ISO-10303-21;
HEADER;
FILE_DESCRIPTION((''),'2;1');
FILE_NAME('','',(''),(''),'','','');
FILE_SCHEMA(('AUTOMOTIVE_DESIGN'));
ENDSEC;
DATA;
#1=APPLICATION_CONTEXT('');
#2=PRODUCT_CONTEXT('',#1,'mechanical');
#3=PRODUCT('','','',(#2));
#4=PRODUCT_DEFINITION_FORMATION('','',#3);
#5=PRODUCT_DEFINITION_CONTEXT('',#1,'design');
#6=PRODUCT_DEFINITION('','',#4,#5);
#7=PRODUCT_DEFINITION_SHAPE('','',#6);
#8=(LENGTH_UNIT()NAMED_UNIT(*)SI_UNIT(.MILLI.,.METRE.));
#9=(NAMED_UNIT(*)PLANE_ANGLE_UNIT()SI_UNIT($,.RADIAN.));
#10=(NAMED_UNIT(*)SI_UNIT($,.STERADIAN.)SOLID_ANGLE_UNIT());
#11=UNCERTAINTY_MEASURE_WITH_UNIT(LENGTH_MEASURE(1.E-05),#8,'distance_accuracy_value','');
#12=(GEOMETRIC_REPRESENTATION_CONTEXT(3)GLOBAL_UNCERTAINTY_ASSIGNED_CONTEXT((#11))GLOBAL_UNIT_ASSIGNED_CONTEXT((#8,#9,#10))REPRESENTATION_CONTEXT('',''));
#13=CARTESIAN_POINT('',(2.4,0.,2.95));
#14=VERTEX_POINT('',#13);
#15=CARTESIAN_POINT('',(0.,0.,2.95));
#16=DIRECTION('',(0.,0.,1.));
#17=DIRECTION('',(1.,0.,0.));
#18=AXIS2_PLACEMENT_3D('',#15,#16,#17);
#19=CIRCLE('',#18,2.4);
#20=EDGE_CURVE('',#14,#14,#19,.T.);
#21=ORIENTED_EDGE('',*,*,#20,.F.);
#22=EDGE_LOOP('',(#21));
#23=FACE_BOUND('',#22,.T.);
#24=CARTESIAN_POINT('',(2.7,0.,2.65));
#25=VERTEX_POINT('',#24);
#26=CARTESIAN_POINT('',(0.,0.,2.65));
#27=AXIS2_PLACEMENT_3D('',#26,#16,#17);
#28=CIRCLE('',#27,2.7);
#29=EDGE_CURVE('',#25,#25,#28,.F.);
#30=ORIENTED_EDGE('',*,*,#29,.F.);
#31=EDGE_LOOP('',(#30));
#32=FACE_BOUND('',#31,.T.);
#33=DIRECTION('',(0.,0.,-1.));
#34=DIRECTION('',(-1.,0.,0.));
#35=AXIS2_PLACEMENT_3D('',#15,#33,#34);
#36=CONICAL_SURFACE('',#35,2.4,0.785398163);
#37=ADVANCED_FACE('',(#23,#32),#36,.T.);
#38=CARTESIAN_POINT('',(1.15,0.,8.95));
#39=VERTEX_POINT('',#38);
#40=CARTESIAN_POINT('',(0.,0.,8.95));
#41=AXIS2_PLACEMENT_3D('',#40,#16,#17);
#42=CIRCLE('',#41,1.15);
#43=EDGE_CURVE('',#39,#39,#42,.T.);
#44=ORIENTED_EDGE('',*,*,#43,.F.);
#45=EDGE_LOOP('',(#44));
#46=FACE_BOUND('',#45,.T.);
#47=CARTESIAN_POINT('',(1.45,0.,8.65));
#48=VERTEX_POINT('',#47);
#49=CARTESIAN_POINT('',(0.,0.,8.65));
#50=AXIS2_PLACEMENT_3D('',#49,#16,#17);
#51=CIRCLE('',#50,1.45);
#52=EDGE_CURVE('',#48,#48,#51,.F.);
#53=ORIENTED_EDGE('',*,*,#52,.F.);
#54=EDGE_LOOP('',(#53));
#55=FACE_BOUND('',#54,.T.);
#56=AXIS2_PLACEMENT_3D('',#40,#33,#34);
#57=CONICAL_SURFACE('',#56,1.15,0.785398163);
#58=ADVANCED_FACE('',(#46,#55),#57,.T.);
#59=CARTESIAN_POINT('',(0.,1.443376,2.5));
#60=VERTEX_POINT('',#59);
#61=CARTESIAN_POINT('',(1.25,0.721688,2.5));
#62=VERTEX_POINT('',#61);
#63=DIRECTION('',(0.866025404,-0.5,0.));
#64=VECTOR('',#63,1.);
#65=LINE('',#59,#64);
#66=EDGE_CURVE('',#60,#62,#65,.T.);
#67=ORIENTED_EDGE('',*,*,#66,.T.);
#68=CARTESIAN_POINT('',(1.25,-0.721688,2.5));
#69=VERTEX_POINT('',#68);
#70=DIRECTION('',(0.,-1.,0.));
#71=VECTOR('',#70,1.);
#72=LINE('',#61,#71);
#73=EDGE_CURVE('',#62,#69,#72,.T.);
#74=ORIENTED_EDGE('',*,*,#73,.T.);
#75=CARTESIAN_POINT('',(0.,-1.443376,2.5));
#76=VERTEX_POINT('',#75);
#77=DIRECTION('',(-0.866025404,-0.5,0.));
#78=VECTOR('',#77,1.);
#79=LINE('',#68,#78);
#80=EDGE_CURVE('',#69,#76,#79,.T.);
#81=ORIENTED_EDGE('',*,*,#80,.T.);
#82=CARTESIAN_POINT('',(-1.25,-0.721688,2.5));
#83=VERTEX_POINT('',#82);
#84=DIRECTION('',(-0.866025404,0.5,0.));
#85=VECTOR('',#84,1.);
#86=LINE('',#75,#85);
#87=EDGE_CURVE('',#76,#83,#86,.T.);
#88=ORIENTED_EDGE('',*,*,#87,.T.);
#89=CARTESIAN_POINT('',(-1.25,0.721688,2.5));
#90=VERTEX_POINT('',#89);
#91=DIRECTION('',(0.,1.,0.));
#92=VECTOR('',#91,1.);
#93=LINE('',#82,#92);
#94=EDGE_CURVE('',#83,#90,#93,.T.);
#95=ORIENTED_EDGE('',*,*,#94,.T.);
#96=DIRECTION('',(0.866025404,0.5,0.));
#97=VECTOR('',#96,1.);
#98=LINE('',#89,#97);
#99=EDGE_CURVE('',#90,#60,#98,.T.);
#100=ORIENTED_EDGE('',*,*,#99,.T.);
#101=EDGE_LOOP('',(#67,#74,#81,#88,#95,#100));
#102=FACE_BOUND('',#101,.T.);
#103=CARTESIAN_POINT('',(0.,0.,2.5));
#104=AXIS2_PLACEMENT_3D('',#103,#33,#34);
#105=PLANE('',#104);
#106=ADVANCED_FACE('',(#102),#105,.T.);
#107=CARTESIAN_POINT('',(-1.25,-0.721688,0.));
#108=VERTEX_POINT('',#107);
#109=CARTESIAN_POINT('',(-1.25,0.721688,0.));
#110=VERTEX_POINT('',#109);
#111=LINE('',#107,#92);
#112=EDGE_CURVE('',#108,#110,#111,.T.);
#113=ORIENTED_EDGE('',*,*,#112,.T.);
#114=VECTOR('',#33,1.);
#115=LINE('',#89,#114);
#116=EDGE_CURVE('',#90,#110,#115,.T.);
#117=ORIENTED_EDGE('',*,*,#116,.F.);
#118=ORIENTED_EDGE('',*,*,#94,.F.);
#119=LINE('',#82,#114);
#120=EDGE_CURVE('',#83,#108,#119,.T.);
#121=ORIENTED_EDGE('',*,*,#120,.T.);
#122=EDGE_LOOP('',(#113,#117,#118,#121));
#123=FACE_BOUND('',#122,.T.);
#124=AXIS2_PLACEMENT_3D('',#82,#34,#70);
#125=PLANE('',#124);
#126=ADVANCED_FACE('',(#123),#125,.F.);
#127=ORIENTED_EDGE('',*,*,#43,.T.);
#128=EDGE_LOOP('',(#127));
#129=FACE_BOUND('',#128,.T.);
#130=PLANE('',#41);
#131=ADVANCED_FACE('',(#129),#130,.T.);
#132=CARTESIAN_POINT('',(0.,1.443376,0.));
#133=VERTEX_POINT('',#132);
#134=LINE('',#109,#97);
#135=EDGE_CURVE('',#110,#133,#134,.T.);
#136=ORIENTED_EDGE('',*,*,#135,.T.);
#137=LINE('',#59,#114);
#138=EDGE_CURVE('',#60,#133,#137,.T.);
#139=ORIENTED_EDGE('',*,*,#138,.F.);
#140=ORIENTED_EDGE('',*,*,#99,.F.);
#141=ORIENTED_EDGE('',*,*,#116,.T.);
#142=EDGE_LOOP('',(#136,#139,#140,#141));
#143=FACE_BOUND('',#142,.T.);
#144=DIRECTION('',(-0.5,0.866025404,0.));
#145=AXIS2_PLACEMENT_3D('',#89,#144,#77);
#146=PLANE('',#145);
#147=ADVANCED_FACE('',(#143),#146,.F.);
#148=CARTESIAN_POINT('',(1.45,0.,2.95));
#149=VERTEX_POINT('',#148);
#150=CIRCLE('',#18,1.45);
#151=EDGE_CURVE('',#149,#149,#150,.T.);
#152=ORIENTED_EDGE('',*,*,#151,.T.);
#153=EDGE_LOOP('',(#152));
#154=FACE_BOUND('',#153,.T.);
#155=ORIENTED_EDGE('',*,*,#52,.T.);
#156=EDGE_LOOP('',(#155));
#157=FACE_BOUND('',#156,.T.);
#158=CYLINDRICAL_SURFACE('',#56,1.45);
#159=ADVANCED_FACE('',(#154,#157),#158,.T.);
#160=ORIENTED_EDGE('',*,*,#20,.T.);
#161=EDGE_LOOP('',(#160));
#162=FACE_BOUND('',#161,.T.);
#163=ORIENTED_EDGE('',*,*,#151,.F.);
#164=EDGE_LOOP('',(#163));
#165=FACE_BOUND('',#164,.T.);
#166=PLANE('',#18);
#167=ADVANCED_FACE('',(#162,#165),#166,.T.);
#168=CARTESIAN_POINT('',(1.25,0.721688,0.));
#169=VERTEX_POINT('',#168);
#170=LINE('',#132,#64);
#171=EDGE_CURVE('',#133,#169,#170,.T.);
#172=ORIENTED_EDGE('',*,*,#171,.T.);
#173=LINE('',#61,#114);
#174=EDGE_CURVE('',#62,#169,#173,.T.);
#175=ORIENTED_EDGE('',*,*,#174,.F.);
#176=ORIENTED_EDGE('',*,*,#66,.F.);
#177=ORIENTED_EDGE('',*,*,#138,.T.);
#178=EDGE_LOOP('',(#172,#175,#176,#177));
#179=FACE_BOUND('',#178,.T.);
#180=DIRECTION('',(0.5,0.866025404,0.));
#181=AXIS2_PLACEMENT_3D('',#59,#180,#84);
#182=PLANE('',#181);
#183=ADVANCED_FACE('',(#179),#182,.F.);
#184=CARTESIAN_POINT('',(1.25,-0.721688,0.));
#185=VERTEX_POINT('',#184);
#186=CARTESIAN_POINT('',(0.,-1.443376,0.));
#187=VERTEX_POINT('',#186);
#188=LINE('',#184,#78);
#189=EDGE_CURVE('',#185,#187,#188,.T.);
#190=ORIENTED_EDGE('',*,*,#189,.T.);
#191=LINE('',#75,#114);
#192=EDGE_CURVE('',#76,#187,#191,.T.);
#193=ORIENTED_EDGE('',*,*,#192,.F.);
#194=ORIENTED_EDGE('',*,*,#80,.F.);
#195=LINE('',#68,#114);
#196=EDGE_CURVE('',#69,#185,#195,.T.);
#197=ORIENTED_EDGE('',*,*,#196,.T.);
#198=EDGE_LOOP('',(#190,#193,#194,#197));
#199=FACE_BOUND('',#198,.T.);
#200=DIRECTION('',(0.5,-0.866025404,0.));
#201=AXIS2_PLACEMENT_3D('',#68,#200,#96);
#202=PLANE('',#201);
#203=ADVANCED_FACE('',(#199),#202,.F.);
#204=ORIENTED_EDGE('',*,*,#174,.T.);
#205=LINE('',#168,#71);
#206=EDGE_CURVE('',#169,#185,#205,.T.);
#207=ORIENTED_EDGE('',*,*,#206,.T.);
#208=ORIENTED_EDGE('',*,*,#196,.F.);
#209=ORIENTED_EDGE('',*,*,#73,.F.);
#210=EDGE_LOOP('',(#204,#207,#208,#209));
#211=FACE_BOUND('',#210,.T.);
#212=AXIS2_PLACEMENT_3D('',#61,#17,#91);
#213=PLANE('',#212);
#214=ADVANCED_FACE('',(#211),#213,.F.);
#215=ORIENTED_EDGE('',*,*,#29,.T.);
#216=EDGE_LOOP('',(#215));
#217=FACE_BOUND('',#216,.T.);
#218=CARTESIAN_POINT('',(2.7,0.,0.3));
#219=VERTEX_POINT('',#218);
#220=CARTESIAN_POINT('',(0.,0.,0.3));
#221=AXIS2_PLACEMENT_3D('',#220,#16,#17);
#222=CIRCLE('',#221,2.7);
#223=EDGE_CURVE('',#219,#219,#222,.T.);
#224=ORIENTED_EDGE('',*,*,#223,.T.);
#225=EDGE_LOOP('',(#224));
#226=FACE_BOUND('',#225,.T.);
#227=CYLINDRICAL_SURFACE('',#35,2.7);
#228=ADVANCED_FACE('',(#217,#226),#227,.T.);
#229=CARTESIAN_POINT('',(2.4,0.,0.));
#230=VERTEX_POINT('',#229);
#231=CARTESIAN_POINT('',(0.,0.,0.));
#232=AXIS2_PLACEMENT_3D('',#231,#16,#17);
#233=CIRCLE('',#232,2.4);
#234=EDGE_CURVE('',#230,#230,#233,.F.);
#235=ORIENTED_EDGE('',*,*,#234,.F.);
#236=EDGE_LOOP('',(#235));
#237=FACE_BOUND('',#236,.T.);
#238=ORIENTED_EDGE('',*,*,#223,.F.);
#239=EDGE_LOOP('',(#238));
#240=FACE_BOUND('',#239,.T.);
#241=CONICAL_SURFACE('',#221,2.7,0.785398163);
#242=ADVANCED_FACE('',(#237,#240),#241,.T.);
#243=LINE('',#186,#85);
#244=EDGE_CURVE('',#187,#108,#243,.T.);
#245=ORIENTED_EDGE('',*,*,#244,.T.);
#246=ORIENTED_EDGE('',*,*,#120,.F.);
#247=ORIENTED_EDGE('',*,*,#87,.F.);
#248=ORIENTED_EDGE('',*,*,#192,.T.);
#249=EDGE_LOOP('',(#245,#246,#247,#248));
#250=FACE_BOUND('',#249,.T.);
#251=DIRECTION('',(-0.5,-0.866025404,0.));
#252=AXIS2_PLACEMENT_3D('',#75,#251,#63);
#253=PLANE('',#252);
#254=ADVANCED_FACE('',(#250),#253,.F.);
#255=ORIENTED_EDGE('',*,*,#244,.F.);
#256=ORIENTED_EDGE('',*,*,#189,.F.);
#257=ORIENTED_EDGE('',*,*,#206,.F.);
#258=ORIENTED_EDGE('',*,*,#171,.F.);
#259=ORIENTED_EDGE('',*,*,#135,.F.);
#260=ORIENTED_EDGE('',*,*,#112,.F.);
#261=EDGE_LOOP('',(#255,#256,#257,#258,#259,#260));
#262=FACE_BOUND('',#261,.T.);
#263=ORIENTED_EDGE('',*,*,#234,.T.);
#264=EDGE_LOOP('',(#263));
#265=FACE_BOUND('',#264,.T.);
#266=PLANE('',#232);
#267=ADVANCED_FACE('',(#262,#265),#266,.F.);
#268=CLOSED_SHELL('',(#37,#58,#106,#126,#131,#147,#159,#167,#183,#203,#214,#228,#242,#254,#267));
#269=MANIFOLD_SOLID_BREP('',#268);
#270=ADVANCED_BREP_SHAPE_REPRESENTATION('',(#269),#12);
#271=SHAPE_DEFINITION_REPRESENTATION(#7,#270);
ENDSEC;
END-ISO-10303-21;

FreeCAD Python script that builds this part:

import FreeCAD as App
import Part
import Sketcher

V = App.Vector
Q = App.Units.Quantity


def edges_at(feature, points):
    """Names of the edges that pass closest to the given points."""
    edges = feature.Shape.Edges
    near = lambda p: min(range(len(edges)), key=lambda i: edges[i].distToShape(Part.Vertex(*p))[0])
    return sorted({f"Edge{near(p) + 1}" for p in points})


def add_polygon(sketch, points):
    """Adds a closed chain of lines whose ends are joined by coincident constraints."""
    first, n = sketch.GeometryCount, len(points)
    for a, b in zip(points, points[1:] + points[:1]):
        sketch.addGeometry(Part.LineSegment(App.Vector(*a, 0), App.Vector(*b, 0)), False)
    for i in range(n):
        sketch.addConstraint(Sketcher.Constraint("Coincident", first + i, 2, first + (i + 1) % n, 1))

doc = App.newDocument("Part")
body = doc.addObject("PartDesign::Body", "Body")

# Sketch on XY plane
sketch1 = body.newObject("Sketcher::SketchObject", "Sketch")
sketch1.AttachmentSupport = (doc.getObject("XY_Plane"), [""])
sketch1.MapMode = "FlatFace"
sketch1.addGeometry(Part.Circle(V(0, 0, 0), V(0, 0, 1), 2.7), False)
sketch1.addConstraint([
    Sketcher.Constraint("Coincident", 0, 3, -1, 1),
    Sketcher.Constraint("Diameter", 0, Q("5.4 mm")),
])
pad1 = body.newObject("PartDesign::Pad", "Pad")
pad1.Profile = sketch1
pad1.Length = 2.95

# Sketch on XY plane
sketch2 = body.newObject("Sketcher::SketchObject", "Sketch001")
sketch2.AttachmentSupport = (doc.getObject("XY_Plane"), [""])
sketch2.MapMode = "FlatFace"
sketch2.AttachmentOffset = App.Placement(V(0, 0, 2.95), App.Rotation())
sketch2.addGeometry(Part.Circle(V(0, 0, 0), V(0, 0, 1), 1.4), False)
sketch2.addConstraint([
    Sketcher.Constraint("Coincident", 0, 3, -1, 1),
    Sketcher.Constraint("Diameter", 0, Q("2.9 mm")),
])
pad2 = body.newObject("PartDesign::Pad", "Pad001")
pad2.Profile = sketch2
pad2.Length = 6
doc.recompute()

chamfer = body.newObject("PartDesign::Chamfer", "Chamfer")
chamfer.Base = (pad2, edges_at(pad2, [(-2.7, 0, 0), (-2.7, 0, 2.95), (-1.45, 0, 8.95)]))
chamfer.Size = 0.3

# Sketch on XY plane
sketch3 = body.newObject("Sketcher::SketchObject", "Sketch002")
sketch3.AttachmentSupport = (doc.getObject("XY_Plane"), [""])
sketch3.MapMode = "FlatFace"
add_polygon(sketch3, [(-1.2, 0.7), (0, 1.4), (1.2, 0.7), (1.2, -0.7), (0, -1.4), (-1.2, -0.7)])  # lines 0-5
sketch3.addConstraint([
    Sketcher.Constraint("Vertical", 2),
    Sketcher.Constraint("Vertical", 5),
    Sketcher.Constraint("Symmetric", 0, 2, 3, 2, -1, 1),
    Sketcher.Constraint("Symmetric", 1, 2, 4, 2, -1, 1),
    Sketcher.Constraint("PointOnObject", 0, 2, -2),
    Sketcher.Constraint("Parallel", 0, 3),
    Sketcher.Constraint("Horizontal", 2, 2, 4, 2),
    Sketcher.Constraint("Angle", 0, Q("30 deg")),
    Sketcher.Constraint("DistanceX", 4, 2, 2, 2, Q("2.5 mm")),
    Sketcher.Constraint("DistanceY", 2, 2, 2, 1, Q("1.443376 mm")),
])
pocket1 = body.newObject("PartDesign::Pocket", "Pocket")
pocket1.Profile = sketch3
pocket1.Length = 2.5
pocket1.Reversed = True

doc.recompute()
